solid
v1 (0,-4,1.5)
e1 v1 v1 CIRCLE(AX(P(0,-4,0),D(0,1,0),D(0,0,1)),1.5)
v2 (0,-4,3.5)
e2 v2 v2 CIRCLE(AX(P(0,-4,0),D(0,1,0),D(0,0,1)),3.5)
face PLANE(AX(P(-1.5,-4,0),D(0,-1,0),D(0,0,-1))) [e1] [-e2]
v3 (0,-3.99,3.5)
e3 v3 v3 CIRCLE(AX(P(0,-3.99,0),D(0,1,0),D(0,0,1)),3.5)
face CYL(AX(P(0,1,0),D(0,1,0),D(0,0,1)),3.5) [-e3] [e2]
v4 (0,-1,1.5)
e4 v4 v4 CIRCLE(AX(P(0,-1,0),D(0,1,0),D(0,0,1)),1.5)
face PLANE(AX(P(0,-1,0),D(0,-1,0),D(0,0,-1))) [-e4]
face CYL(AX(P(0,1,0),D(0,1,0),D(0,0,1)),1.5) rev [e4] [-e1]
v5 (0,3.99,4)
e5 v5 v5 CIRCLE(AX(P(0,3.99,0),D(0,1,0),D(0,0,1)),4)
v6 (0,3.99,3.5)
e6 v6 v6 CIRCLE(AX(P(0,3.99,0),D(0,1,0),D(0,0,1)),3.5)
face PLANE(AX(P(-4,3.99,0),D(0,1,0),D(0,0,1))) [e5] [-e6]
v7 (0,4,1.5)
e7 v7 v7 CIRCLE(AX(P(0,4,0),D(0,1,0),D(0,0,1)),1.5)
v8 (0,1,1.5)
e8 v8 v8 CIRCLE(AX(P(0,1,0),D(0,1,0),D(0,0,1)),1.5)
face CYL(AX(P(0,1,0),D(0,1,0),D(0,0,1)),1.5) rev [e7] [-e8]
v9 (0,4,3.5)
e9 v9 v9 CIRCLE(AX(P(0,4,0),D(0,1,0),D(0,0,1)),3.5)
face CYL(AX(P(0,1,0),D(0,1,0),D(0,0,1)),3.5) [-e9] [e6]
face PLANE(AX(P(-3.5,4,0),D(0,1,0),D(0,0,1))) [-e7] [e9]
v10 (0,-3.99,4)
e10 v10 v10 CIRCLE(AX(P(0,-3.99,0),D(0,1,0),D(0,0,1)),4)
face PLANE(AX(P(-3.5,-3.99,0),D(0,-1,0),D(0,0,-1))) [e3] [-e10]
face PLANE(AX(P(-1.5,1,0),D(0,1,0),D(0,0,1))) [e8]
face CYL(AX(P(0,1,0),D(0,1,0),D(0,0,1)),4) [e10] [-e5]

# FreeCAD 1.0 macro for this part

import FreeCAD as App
import Part
import Sketcher
Q = App.Units.Quantity

doc = App.newDocument("Part")
body = doc.addObject("PartDesign::Body", "Body")

sketch1 = body.newObject("Sketcher::SketchObject", "Sketch")
sketch1.AttachmentSupport = (doc.getObject("XY_Plane"), [""])
sketch1.MapMode = "FlatFace"
sketch1.addGeometry([
    Part.LineSegment(App.Vector(-1.5, -1, 0), App.Vector(0, -1, 0)),
    Part.LineSegment(App.Vector(0, -1, 0), App.Vector(0, 1, 0)),
    Part.LineSegment(App.Vector(0, 1, 0), App.Vector(-1.5, 1, 0)),
    Part.LineSegment(App.Vector(-1.5, 1, 0), App.Vector(-1.5, 4, 0)),
    Part.LineSegment(App.Vector(-1.5, 4, 0), App.Vector(-3.5, 4, 0)),
    Part.LineSegment(App.Vector(-3.5, 4, 0), App.Vector(-3.5, 3.99, 0)),
    Part.LineSegment(App.Vector(-3.5, 3.99, 0), App.Vector(-4, 3.99, 0)),
    Part.LineSegment(App.Vector(-4, 3.99, 0), App.Vector(-4, -3.99, 0)),
    Part.LineSegment(App.Vector(-4, -3.99, 0), App.Vector(-3.5, -3.99, 0)),
    Part.LineSegment(App.Vector(-3.5, -3.99, 0), App.Vector(-3.5, -4, 0)),
    Part.LineSegment(App.Vector(-3.5, -4, 0), App.Vector(-1.5, -4, 0)),
    Part.LineSegment(App.Vector(-1.5, -4, 0), App.Vector(-1.5, -1, 0)),
], False)
sketch1.addConstraint([
    Sketcher.Constraint("Coincident", 0, 2, 1, 1),
    Sketcher.Constraint("Coincident", 1, 2, 2, 1),
    Sketcher.Constraint("Coincident", 2, 2, 3, 1),
    Sketcher.Constraint("Coincident", 3, 2, 4, 1),
    Sketcher.Constraint("Coincident", 4, 2, 5, 1),
    Sketcher.Constraint("Coincident", 5, 2, 6, 1),
    Sketcher.Constraint("Coincident", 6, 2, 7, 1),
    Sketcher.Constraint("Coincident", 7, 2, 8, 1),
    Sketcher.Constraint("Coincident", 8, 2, 9, 1),
    Sketcher.Constraint("Coincident", 9, 2, 10, 1),
    Sketcher.Constraint("Coincident", 10, 2, 11, 1),
    Sketcher.Constraint("Coincident", 11, 2, 0, 1),
    Sketcher.Constraint("Horizontal", 0),
    Sketcher.Constraint("Vertical", 1),
    Sketcher.Constraint("Horizontal", 2),
    Sketcher.Constraint("Vertical", 3),
    Sketcher.Constraint("Horizontal", 4),
    Sketcher.Constraint("Vertical", 5),
    Sketcher.Constraint("Horizontal", 6),
    Sketcher.Constraint("Vertical", 7),
    Sketcher.Constraint("Horizontal", 8),
    Sketcher.Constraint("Vertical", 9),
    Sketcher.Constraint("Horizontal", 10),
    Sketcher.Constraint("Vertical", 11),
    Sketcher.Constraint("Symmetric", 0, 2, 1, 2, -1, 1),
    Sketcher.Constraint("Symmetric", 5, 2, 8, 2, -1),
    Sketcher.Constraint("Symmetric", 3, 2, 10, 2, -1),
    Sketcher.Constraint("Equal", 10, 1),
    Sketcher.Constraint("DistanceX", 4, 2, 4, 1, Q("2 mm")),
    Sketcher.Constraint("DistanceY", 3, 1, 3, 2, Q("3 mm")),
    Sketcher.Constraint("DistanceX", 0, 1, 0, 2, Q("1.5 mm")),
    Sketcher.Constraint("DistanceX", 6, 2, 6, 1, Q("0.5 mm")),
    Sketcher.Constraint("DistanceY", 5, 2, 5, 1, Q("0.01 mm")),
])
revolution = body.newObject("PartDesign::Revolution", "Revolution")
revolution.Profile = sketch1
revolution.ReferenceAxis = (sketch1, ["V_Axis"])
revolution.Angle = 360

doc.recompute()
